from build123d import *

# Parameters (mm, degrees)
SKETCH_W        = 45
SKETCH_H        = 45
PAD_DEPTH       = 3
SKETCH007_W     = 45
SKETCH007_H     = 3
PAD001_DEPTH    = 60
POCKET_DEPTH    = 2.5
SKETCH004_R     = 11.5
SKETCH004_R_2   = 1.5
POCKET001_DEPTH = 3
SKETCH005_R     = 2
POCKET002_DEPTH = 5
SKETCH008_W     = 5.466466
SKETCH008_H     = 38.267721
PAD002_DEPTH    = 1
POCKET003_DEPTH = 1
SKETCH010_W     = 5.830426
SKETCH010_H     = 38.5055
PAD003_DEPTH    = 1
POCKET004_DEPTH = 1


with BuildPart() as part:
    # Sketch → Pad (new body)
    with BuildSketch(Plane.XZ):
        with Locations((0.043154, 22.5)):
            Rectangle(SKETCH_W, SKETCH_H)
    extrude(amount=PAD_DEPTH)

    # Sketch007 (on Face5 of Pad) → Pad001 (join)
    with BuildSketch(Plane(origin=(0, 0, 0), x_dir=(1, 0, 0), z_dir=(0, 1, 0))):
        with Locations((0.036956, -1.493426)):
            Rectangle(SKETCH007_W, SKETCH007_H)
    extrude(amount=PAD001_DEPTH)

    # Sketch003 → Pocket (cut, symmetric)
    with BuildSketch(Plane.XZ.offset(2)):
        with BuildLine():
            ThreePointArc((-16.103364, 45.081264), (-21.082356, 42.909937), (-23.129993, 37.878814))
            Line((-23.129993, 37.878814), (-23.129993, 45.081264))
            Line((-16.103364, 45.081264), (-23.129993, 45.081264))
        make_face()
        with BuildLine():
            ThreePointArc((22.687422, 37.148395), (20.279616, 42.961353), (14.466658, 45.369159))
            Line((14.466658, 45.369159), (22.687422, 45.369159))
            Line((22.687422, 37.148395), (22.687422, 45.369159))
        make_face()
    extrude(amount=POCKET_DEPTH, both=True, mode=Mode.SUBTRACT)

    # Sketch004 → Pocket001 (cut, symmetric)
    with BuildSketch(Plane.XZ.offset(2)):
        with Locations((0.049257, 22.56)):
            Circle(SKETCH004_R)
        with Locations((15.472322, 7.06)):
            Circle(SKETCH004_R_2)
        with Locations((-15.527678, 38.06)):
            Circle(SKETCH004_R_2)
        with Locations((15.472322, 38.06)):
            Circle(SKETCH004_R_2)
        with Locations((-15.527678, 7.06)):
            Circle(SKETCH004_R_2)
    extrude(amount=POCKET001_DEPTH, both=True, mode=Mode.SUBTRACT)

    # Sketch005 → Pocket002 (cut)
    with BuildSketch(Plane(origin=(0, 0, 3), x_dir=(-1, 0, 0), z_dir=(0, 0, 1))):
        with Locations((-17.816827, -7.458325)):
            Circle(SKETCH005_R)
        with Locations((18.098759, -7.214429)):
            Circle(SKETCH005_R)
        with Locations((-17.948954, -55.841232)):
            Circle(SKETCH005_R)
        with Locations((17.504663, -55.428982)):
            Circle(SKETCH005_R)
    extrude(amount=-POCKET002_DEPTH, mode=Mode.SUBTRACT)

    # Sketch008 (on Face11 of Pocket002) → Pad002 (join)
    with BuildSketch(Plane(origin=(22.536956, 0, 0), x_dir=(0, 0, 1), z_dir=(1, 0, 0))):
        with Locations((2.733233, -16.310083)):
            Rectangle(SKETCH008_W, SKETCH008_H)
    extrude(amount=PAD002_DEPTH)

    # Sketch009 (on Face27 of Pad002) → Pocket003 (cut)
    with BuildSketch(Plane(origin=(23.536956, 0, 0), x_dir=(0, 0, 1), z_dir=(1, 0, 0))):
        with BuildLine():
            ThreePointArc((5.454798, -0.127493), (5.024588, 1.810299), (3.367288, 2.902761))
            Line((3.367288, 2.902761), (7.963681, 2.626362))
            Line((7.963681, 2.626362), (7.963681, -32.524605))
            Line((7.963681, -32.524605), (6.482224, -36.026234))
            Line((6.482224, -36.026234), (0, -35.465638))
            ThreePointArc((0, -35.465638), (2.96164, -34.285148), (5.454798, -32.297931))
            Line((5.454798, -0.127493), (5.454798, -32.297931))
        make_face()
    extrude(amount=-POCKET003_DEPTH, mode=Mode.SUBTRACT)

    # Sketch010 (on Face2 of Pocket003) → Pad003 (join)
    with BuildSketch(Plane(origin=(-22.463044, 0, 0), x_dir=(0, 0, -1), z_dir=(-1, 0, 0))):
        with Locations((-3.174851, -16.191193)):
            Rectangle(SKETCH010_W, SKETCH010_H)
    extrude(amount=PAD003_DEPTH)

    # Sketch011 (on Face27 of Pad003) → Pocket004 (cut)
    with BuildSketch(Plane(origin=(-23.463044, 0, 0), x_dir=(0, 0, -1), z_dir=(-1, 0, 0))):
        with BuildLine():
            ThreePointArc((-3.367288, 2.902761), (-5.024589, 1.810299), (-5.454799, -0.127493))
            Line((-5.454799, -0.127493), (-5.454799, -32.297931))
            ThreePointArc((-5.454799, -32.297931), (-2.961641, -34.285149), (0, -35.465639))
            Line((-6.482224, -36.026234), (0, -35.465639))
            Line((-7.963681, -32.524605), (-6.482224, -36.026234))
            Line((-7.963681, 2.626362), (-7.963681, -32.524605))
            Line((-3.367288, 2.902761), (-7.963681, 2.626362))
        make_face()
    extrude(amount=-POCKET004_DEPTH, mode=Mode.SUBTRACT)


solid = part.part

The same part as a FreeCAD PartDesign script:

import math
import FreeCAD as App
import Part
import Sketcher


def add_polygon(sketch, points):
    """Adds a closed chain of lines whose ends are joined by coincident constraints."""
    first, n = sketch.GeometryCount, len(points)
    for a, b in zip(points, points[1:] + points[:1]):
        sketch.addGeometry(Part.LineSegment(App.Vector(*a, 0), App.Vector(*b, 0)), False)
    for i in range(n):
        sketch.addConstraint(Sketcher.Constraint("Coincident", first + i, 2, first + (i + 1) % n, 1))

doc = App.newDocument("Part")
body = doc.addObject("PartDesign::Body", "Body")

# Sketch on XZ plane
sketch1 = body.newObject("Sketcher::SketchObject", "Sketch")
sketch1.AttachmentSupport = (doc.getObject("XZ_Plane"), [""])
sketch1.MapMode = "FlatFace"
add_polygon(sketch1, [(-22, 45), (-22, 0), (23, 0), (23, 45)])  # lines 0-3
sketch1.addConstraint([
    Sketcher.Constraint("Vertical", 0),
    Sketcher.Constraint("Horizontal", 1),
    Sketcher.Constraint("Vertical", 2),
    Sketcher.Constraint("Horizontal", 3),
    Sketcher.Constraint("PointOnObject", 0, 2, -1),
    Sketcher.Constraint("Equal", 3, 0),
    Sketcher.Constraint("DistanceX", 1, 1, 1, 2, 45.0),
    Sketcher.Constraint("DistanceX", 0, 2, -1, 1, 22.456846),
])
pad1 = body.newObject("PartDesign::Pad", "Pad")
pad1.Profile = sketch1
pad1.Length = 3

# Sketch on XZ plane
sketch2 = body.newObject("Sketcher::SketchObject", "Sketch001")
sketch2.AttachmentSupport = (doc.getObject("XZ_Plane"), [""])
sketch2.MapMode = "FlatFace"
add_polygon(sketch2, [(-22.5, 0), (-22.5, 3), (22.5, 3), (22.5, 0)])  # lines 0-3
sketch2.addConstraint([
    Sketcher.Constraint("Vertical", 0),
    Sketcher.Constraint("Horizontal", 1),
    Sketcher.Constraint("Vertical", 2),
    Sketcher.Constraint("Horizontal", 3),
    Sketcher.Constraint("DistanceX", 1, 1, 1, 2, 45.0),
    Sketcher.Constraint("DistanceY", 0, 1, 0, 2, 3.0),
    Sketcher.Constraint("DistanceX", 0, 2, -1, 1, 22.463044),
    Sketcher.Constraint("DistanceY", -1, 1, 0, 2, 2.993426),
])
pad2 = body.newObject("PartDesign::Pad", "Pad001")
pad2.Profile = sketch2
pad2.Length = 60
pad2.Reversed = True

# Sketch on XZ plane
sketch3 = body.newObject("Sketcher::SketchObject", "Sketch002")
sketch3.AttachmentSupport = (doc.getObject("XZ_Plane"), [""])
sketch3.MapMode = "FlatFace"
sketch3.AttachmentOffset = App.Placement(App.Vector(0, 0, 2), App.Rotation())
sketch3.addGeometry([
    Part.ArcOfCircle(Part.Circle(App.Vector(-16, 38, 0), App.Vector(0, 0, 1), 7), math.radians(91), math.radians(180)),  # 0
    Part.LineSegment(App.Vector(-16, 45, 0), App.Vector(-23, 45, 0)),  # 1
    Part.LineSegment(App.Vector(-23, 45, 0), App.Vector(-23, 38, 0)),  # 2
    Part.ArcOfCircle(Part.Circle(App.Vector(14, 37, 0), App.Vector(0, 0, 1), 8), math.radians(0), math.radians(90)),  # 3
    Part.LineSegment(App.Vector(23, 37, 0), App.Vector(23, 45, 0)),  # 4
    Part.LineSegment(App.Vector(23, 45, 0), App.Vector(14, 45, 0)),  # 5
], False)
sketch3.addConstraint([
    Sketcher.Constraint("Coincident", 0, 1, 1, 1),
    Sketcher.Constraint("Coincident", 1, 2, 2, 1),
    Sketcher.Constraint("Tangent", 2, 2, 0, 2),
    Sketcher.Constraint("Tangent", 3, 1, 4, 1),
    Sketcher.Constraint("Coincident", 4, 2, 5, 1),
    Sketcher.Constraint("Tangent", 5, 2, 3, 2),
    Sketcher.Constraint("Horizontal", 1),
    Sketcher.Constraint("Vertical", 2),
    Sketcher.Constraint("Vertical", 4),
    Sketcher.Constraint("Horizontal", 5),
    Sketcher.Constraint("Radius", 0, 7.204649),
    Sketcher.Constraint("Radius", 3, 8.220764),
    Sketcher.Constraint("DistanceX", 0, 3, 3, 3, 30.392002),
    Sketcher.Constraint("DistanceX", 1, 2, 1, 1, 7.026629),
    Sketcher.Constraint("DistanceX", -1, 1, 3, 3, 14.466658),
    Sketcher.Constraint("DistanceY", -1, 1, 4, 2, 45.369159),
    Sketcher.Constraint("DistanceY", 3, 3, 0, 3, 0.730419),
])
pocket1 = body.newObject("PartDesign::Pocket", "Pocket")
pocket1.Profile = sketch3
pocket1.Length = 5
pocket1.Midplane = True

# Sketch on XZ plane
sketch4 = body.newObject("Sketcher::SketchObject", "Sketch003")
sketch4.AttachmentSupport = (doc.getObject("XZ_Plane"), [""])
sketch4.MapMode = "FlatFace"
sketch4.AttachmentOffset = App.Placement(App.Vector(0, 0, 2), App.Rotation())
sketch4.addGeometry([
    Part.Circle(App.Vector(0, 22.6, 0), App.Vector(0, 0, 1), 11.5),  # 0
    Part.Circle(App.Vector(15.5, 7.1, 0), App.Vector(0, 0, 1), 1.5),  # 1
    Part.Circle(App.Vector(-15.5, 38.1, 0), App.Vector(0, 0, 1), 1.5),  # 2
    Part.Circle(App.Vector(15.5, 38.1, 0), App.Vector(0, 0, 1), 1.5),  # 3
    Part.Circle(App.Vector(-15.5, 7.1, 0), App.Vector(0, 0, 1), 1.5),  # 4
], False)
sketch4.addConstraint([
    Sketcher.Constraint("Equal", 1, 2),
    Sketcher.Constraint("Equal", 2, 3),
    Sketcher.Constraint("Equal", 3, 4),
    Sketcher.Constraint("Horizontal", 2, 3, 3, 3),
    Sketcher.Constraint("Horizontal", 1, 3, 4, 3),
    Sketcher.Constraint("Vertical", 1, 3, 3, 3),
    Sketcher.Constraint("Vertical", 2, 3, 4, 3),
    Sketcher.Constraint("Diameter", 0, 23.0),
    Sketcher.Constraint("Diameter", 1, 3.0),
    Sketcher.Constraint("DistanceX", 2, 3, 1, 3, 31.0),
    Sketcher.Constraint("DistanceY", 1, 3, 2, 3, 31.0),
    Sketcher.Constraint("DistanceY", 1, 3, 0, 3, 15.5),
    Sketcher.Constraint("DistanceY", -1, 1, 0, 3, 22.56),
    Sketcher.Constraint("DistanceX", -1, 1, 0, 3, 0.049257),
    Sketcher.Constraint("DistanceX", -1, 1, 1, 3, 15.472322),
])
pocket2 = body.newObject("PartDesign::Pocket", "Pocket001")
pocket2.Profile = sketch4
pocket2.Length = 6
pocket2.Midplane = True

# Sketch on XY plane
sketch5 = body.newObject("Sketcher::SketchObject", "Sketch004")
sketch5.AttachmentSupport = (doc.getObject("XY_Plane"), [""])
sketch5.MapMode = "FlatFace"
sketch5.AttachmentOffset = App.Placement(App.Vector(0, 0, 3), App.Rotation())
sketch5.addGeometry([
    Part.Circle(App.Vector(17.8, 7.5, 0), App.Vector(0, 0, 1), 2),
    Part.Circle(App.Vector(-18.1, 7.2, 0), App.Vector(0, 0, 1), 2),
    Part.Circle(App.Vector(17.9, 55.8, 0), App.Vector(0, 0, 1), 2),
    Part.Circle(App.Vector(-17.5, 55.4, 0), App.Vector(0, 0, 1), 2),
], False)
sketch5.addConstraint([
    Sketcher.Constraint("Equal", 0, 1),
    Sketcher.Constraint("Equal", 1, 2),
    Sketcher.Constraint("Equal", 2, 3),
    Sketcher.Constraint("Diameter", 0, 4.0),
    Sketcher.Constraint("DistanceX", 1, 3, -1, 1, 18.098759),
    Sketcher.Constraint("DistanceY", -1, 1, 1, 3, 7.214429),
    Sketcher.Constraint("DistanceY", -1, 1, 2, 3, 55.841232),
    Sketcher.Constraint("DistanceY", -1, 1, 3, 3, 55.428982),
    Sketcher.Constraint("DistanceX", 3, 3, 0, 3, 35.32149),
    Sketcher.Constraint("DistanceX", -1, 1, 0, 3, 17.816827),
    Sketcher.Constraint("DistanceY", -1, 1, 0, 3, 7.458325),
    Sketcher.Constraint("DistanceX", -1, 1, 2, 3, 17.948954),
])
pocket3 = body.newObject("PartDesign::Pocket", "Pocket002")
pocket3.Profile = sketch5
pocket3.Length = 5

# Sketch on YZ plane
sketch6 = body.newObject("Sketcher::SketchObject", "Sketch005")
sketch6.AttachmentSupport = (doc.getObject("YZ_Plane"), [""])
sketch6.MapMode = "FlatFace"
sketch6.AttachmentOffset = App.Placement(App.Vector(0, 0, 22.536956), App.Rotation())
add_polygon(sketch6, [(-3, 0), (35, 0), (35, 5), (-3, 5)])  # lines 0-3
sketch6.addConstraint([
    Sketcher.Constraint("Horizontal", 0),
    Sketcher.Constraint("Vertical", 1),
    Sketcher.Constraint("Horizontal", 2),
    Sketcher.Constraint("Vertical", 3),
    Sketcher.Constraint("PointOnObject", 0, 2, -1),
    Sketcher.Constraint("DistanceX", 0, 1, 0, 2, 38.267721),
    Sketcher.Constraint("DistanceY", 1, 1, 1, 2, 5.466466),
    Sketcher.Constraint("DistanceX", -1, 1, 0, 2, 35.443944),
])
pad3 = body.newObject("PartDesign::Pad", "Pad002")
pad3.Profile = sketch6
pad3.Length = 1

# Sketch on YZ plane
sketch7 = body.newObject("Sketcher::SketchObject", "Sketch006")
sketch7.AttachmentSupport = (doc.getObject("YZ_Plane"), [""])
sketch7.MapMode = "FlatFace"
sketch7.AttachmentOffset = App.Placement(App.Vector(0, 0, 23.536956), App.Rotation())
sketch7.addGeometry([
    Part.ArcOfCircle(Part.Circle(App.Vector(-0.3, 2.8, 0), App.Vector(0, 0, 1), 2.6), math.radians(80), math.radians(169)),  # 0
    Part.LineSegment(App.Vector(0.1, 5.5, 0), App.Vector(32.3, 5.5, 0)),  # 1
    Part.ArcOfCircle(Part.Circle(App.Vector(24.9, -2.5, 0), App.Vector(0, 0, 1), 10.9), math.radians(13), math.radians(47)),  # 2
    Part.LineSegment(App.Vector(35.5, 0, 0), App.Vector(36, 6.5, 0)),  # 3
    Part.LineSegment(App.Vector(36, 6.5, 0), App.Vector(32.5, 8, 0)),  # 4
    Part.LineSegment(App.Vector(32.5, 8, 0), App.Vector(-2.6, 8, 0)),  # 5
    Part.LineSegment(App.Vector(-2.6, 8, 0), App.Vector(-2.9, 3.4, 0)),  # 6
], False)
sketch7.addConstraint([
    Sketcher.Constraint("Coincident", 0, 1, 1, 1),
    Sketcher.Constraint("Coincident", 1, 2, 2, 2),
    Sketcher.Constraint("Coincident", 2, 1, 3, 1),
    Sketcher.Constraint("Coincident", 3, 2, 4, 1),
    Sketcher.Constraint("Coincident", 4, 2, 5, 1),
    Sketcher.Constraint("Coincident", 5, 2, 6, 1),
    Sketcher.Constraint("Coincident", 6, 2, 0, 2),
    Sketcher.Constraint("Horizontal", 1),
    Sketcher.Constraint("Horizontal", 5),
    Sketcher.Constraint("PointOnObject", 2, 1, -1),
    Sketcher.Constraint("Radius", 0, 2.644236),
    Sketcher.Constraint("Radius", 2, 10.896105),
    Sketcher.Constraint("DistanceY", -1, 1, 1, 2, 5.454798),
    Sketcher.Constraint("DistanceX", 6, 2, 5, 2, 0.276399),
    Sketcher.Constraint("Distance", 3, 6.50642),
    Sketcher.Constraint("Distance", 4, 3.802121),
    Sketcher.Constraint("DistanceX", 1, 1, 1, 2, 32.170438),
    Sketcher.Constraint("DistanceX", 5, 2, 5, 1, 35.150967),
    Sketcher.Constraint("DistanceX", 0, 3, -1, 1, 0.310209),
    Sketcher.Constraint("DistanceY", -1, 1, 0, 3, 2.847041),
    Sketcher.Constraint("DistanceX", -1, 1, 2, 3, 24.86262),
    Sketcher.Constraint("DistanceY", -1, 1, 4, 2, 7.963681),
    Sketcher.Constraint("DistanceX", 5, 2, -1, 1, 2.626362),
])
pocket4 = body.newObject("PartDesign::Pocket", "Pocket003")
pocket4.Profile = sketch7
pocket4.Length = 1

# Sketch on YZ plane
sketch8 = body.newObject("Sketcher::SketchObject", "Sketch007")
sketch8.AttachmentSupport = (doc.getObject("YZ_Plane"), [""])
sketch8.MapMode = "FlatFace"
sketch8.AttachmentOffset = App.Placement(App.Vector(0, 0, -22.463044), App.Rotation())
add_polygon(sketch8, [(-3, 6), (35, 6), (35, 0), (-3, 0)])  # lines 0-3
sketch8.addConstraint([
    Sketcher.Constraint("Horizontal", 0),
    Sketcher.Constraint("Vertical", 1),
    Sketcher.Constraint("Horizontal", 2),
    Sketcher.Constraint("Vertical", 3),
    Sketcher.Constraint("DistanceX", 0, 1, 0, 2, 38.5055),
    Sketcher.Constraint("DistanceY", 1, 2, 1, 1, 5.830426),
    Sketcher.Constraint("DistanceX", -1, 1, 0, 2, 35.443943),
    Sketcher.Constraint("DistanceY", -1, 1, 0, 2, 6.090064),
])
pad4 = body.newObject("PartDesign::Pad", "Pad003")
pad4.Profile = sketch8
pad4.Length = 1
pad4.Reversed = True

# Sketch on YZ plane
sketch9 = body.newObject("Sketcher::SketchObject", "Sketch008")
sketch9.AttachmentSupport = (doc.getObject("YZ_Plane"), [""])
sketch9.MapMode = "FlatFace"
sketch9.AttachmentOffset = App.Placement(App.Vector(0, 0, -23.463044), App.Rotation())
sketch9.addGeometry([
    Part.ArcOfCircle(Part.Circle(App.Vector(-0.3, 2.8, 0), App.Vector(0, 0, 1), 2.6), math.radians(80), math.radians(169)),  # 0
    Part.LineSegment(App.Vector(-2.9, 3.4, 0), App.Vector(-2.6, 8, 0)),  # 1
    Part.LineSegment(App.Vector(-2.6, 8, 0), App.Vector(32.5, 8, 0)),  # 2
    Part.LineSegment(App.Vector(32.5, 8, 0), App.Vector(36, 6.5, 0)),  # 3
    Part.LineSegment(App.Vector(36, 6.5, 0), App.Vector(35.5, 0, 0)),  # 4
    Part.ArcOfCircle(Part.Circle(App.Vector(24.9, -2.5, 0), App.Vector(0, 0, 1), 10.9), math.radians(13), math.radians(47)),  # 5
    Part.LineSegment(App.Vector(32.3, 5.5, 0), App.Vector(0.1, 5.5, 0)),  # 6
], False)
sketch9.addConstraint([
    Sketcher.Constraint("Coincident", 0, 2, 1, 1),
    Sketcher.Constraint("Coincident", 1, 2, 2, 1),
    Sketcher.Constraint("Coincident", 2, 2, 3, 1),
    Sketcher.Constraint("Coincident", 3, 2, 4, 1),
    Sketcher.Constraint("Coincident", 4, 2, 5, 1),
    Sketcher.Constraint("Coincident", 5, 2, 6, 1),
    Sketcher.Constraint("Coincident", 6, 2, 0, 1),
    Sketcher.Constraint("Horizontal", 2),
    Sketcher.Constraint("Horizontal", 6),
    Sketcher.Constraint("PointOnObject", 4, 2, -1),
    Sketcher.Constraint("Radius", 0, 2.644235),
    Sketcher.Constraint("Radius", 5, 10.896095),
    Sketcher.Constraint("DistanceY", 5, 3, -1, 1, 2.510199),
    Sketcher.Constraint("DistanceY", -1, 1, 5, 2, 5.454799),
    Sketcher.Constraint("DistanceX", 0, 2, 1, 2, 0.276399),
    Sketcher.Constraint("DistanceX", 0, 2, 4, 2, 38.3684),
    Sketcher.Constraint("Distance", 3, 3.802121),
    Sketcher.Constraint("Distance", 4, 6.50642),
    Sketcher.Constraint("DistanceX", 2, 1, 2, 2, 35.150967),
    Sketcher.Constraint("DistanceX", 6, 2, 6, 1, 32.170438),
    Sketcher.Constraint("DistanceX", 0, 3, -1, 1, 0.310209),
    Sketcher.Constraint("DistanceY", -1, 1, 0, 3, 2.847042),
    Sketcher.Constraint("DistanceY", -1, 1, 1, 2, 7.963681),
])
pocket5 = body.newObject("PartDesign::Pocket", "Pocket004")
pocket5.Profile = sketch9
pocket5.Length = 1
pocket5.Reversed = True

doc.recompute()
